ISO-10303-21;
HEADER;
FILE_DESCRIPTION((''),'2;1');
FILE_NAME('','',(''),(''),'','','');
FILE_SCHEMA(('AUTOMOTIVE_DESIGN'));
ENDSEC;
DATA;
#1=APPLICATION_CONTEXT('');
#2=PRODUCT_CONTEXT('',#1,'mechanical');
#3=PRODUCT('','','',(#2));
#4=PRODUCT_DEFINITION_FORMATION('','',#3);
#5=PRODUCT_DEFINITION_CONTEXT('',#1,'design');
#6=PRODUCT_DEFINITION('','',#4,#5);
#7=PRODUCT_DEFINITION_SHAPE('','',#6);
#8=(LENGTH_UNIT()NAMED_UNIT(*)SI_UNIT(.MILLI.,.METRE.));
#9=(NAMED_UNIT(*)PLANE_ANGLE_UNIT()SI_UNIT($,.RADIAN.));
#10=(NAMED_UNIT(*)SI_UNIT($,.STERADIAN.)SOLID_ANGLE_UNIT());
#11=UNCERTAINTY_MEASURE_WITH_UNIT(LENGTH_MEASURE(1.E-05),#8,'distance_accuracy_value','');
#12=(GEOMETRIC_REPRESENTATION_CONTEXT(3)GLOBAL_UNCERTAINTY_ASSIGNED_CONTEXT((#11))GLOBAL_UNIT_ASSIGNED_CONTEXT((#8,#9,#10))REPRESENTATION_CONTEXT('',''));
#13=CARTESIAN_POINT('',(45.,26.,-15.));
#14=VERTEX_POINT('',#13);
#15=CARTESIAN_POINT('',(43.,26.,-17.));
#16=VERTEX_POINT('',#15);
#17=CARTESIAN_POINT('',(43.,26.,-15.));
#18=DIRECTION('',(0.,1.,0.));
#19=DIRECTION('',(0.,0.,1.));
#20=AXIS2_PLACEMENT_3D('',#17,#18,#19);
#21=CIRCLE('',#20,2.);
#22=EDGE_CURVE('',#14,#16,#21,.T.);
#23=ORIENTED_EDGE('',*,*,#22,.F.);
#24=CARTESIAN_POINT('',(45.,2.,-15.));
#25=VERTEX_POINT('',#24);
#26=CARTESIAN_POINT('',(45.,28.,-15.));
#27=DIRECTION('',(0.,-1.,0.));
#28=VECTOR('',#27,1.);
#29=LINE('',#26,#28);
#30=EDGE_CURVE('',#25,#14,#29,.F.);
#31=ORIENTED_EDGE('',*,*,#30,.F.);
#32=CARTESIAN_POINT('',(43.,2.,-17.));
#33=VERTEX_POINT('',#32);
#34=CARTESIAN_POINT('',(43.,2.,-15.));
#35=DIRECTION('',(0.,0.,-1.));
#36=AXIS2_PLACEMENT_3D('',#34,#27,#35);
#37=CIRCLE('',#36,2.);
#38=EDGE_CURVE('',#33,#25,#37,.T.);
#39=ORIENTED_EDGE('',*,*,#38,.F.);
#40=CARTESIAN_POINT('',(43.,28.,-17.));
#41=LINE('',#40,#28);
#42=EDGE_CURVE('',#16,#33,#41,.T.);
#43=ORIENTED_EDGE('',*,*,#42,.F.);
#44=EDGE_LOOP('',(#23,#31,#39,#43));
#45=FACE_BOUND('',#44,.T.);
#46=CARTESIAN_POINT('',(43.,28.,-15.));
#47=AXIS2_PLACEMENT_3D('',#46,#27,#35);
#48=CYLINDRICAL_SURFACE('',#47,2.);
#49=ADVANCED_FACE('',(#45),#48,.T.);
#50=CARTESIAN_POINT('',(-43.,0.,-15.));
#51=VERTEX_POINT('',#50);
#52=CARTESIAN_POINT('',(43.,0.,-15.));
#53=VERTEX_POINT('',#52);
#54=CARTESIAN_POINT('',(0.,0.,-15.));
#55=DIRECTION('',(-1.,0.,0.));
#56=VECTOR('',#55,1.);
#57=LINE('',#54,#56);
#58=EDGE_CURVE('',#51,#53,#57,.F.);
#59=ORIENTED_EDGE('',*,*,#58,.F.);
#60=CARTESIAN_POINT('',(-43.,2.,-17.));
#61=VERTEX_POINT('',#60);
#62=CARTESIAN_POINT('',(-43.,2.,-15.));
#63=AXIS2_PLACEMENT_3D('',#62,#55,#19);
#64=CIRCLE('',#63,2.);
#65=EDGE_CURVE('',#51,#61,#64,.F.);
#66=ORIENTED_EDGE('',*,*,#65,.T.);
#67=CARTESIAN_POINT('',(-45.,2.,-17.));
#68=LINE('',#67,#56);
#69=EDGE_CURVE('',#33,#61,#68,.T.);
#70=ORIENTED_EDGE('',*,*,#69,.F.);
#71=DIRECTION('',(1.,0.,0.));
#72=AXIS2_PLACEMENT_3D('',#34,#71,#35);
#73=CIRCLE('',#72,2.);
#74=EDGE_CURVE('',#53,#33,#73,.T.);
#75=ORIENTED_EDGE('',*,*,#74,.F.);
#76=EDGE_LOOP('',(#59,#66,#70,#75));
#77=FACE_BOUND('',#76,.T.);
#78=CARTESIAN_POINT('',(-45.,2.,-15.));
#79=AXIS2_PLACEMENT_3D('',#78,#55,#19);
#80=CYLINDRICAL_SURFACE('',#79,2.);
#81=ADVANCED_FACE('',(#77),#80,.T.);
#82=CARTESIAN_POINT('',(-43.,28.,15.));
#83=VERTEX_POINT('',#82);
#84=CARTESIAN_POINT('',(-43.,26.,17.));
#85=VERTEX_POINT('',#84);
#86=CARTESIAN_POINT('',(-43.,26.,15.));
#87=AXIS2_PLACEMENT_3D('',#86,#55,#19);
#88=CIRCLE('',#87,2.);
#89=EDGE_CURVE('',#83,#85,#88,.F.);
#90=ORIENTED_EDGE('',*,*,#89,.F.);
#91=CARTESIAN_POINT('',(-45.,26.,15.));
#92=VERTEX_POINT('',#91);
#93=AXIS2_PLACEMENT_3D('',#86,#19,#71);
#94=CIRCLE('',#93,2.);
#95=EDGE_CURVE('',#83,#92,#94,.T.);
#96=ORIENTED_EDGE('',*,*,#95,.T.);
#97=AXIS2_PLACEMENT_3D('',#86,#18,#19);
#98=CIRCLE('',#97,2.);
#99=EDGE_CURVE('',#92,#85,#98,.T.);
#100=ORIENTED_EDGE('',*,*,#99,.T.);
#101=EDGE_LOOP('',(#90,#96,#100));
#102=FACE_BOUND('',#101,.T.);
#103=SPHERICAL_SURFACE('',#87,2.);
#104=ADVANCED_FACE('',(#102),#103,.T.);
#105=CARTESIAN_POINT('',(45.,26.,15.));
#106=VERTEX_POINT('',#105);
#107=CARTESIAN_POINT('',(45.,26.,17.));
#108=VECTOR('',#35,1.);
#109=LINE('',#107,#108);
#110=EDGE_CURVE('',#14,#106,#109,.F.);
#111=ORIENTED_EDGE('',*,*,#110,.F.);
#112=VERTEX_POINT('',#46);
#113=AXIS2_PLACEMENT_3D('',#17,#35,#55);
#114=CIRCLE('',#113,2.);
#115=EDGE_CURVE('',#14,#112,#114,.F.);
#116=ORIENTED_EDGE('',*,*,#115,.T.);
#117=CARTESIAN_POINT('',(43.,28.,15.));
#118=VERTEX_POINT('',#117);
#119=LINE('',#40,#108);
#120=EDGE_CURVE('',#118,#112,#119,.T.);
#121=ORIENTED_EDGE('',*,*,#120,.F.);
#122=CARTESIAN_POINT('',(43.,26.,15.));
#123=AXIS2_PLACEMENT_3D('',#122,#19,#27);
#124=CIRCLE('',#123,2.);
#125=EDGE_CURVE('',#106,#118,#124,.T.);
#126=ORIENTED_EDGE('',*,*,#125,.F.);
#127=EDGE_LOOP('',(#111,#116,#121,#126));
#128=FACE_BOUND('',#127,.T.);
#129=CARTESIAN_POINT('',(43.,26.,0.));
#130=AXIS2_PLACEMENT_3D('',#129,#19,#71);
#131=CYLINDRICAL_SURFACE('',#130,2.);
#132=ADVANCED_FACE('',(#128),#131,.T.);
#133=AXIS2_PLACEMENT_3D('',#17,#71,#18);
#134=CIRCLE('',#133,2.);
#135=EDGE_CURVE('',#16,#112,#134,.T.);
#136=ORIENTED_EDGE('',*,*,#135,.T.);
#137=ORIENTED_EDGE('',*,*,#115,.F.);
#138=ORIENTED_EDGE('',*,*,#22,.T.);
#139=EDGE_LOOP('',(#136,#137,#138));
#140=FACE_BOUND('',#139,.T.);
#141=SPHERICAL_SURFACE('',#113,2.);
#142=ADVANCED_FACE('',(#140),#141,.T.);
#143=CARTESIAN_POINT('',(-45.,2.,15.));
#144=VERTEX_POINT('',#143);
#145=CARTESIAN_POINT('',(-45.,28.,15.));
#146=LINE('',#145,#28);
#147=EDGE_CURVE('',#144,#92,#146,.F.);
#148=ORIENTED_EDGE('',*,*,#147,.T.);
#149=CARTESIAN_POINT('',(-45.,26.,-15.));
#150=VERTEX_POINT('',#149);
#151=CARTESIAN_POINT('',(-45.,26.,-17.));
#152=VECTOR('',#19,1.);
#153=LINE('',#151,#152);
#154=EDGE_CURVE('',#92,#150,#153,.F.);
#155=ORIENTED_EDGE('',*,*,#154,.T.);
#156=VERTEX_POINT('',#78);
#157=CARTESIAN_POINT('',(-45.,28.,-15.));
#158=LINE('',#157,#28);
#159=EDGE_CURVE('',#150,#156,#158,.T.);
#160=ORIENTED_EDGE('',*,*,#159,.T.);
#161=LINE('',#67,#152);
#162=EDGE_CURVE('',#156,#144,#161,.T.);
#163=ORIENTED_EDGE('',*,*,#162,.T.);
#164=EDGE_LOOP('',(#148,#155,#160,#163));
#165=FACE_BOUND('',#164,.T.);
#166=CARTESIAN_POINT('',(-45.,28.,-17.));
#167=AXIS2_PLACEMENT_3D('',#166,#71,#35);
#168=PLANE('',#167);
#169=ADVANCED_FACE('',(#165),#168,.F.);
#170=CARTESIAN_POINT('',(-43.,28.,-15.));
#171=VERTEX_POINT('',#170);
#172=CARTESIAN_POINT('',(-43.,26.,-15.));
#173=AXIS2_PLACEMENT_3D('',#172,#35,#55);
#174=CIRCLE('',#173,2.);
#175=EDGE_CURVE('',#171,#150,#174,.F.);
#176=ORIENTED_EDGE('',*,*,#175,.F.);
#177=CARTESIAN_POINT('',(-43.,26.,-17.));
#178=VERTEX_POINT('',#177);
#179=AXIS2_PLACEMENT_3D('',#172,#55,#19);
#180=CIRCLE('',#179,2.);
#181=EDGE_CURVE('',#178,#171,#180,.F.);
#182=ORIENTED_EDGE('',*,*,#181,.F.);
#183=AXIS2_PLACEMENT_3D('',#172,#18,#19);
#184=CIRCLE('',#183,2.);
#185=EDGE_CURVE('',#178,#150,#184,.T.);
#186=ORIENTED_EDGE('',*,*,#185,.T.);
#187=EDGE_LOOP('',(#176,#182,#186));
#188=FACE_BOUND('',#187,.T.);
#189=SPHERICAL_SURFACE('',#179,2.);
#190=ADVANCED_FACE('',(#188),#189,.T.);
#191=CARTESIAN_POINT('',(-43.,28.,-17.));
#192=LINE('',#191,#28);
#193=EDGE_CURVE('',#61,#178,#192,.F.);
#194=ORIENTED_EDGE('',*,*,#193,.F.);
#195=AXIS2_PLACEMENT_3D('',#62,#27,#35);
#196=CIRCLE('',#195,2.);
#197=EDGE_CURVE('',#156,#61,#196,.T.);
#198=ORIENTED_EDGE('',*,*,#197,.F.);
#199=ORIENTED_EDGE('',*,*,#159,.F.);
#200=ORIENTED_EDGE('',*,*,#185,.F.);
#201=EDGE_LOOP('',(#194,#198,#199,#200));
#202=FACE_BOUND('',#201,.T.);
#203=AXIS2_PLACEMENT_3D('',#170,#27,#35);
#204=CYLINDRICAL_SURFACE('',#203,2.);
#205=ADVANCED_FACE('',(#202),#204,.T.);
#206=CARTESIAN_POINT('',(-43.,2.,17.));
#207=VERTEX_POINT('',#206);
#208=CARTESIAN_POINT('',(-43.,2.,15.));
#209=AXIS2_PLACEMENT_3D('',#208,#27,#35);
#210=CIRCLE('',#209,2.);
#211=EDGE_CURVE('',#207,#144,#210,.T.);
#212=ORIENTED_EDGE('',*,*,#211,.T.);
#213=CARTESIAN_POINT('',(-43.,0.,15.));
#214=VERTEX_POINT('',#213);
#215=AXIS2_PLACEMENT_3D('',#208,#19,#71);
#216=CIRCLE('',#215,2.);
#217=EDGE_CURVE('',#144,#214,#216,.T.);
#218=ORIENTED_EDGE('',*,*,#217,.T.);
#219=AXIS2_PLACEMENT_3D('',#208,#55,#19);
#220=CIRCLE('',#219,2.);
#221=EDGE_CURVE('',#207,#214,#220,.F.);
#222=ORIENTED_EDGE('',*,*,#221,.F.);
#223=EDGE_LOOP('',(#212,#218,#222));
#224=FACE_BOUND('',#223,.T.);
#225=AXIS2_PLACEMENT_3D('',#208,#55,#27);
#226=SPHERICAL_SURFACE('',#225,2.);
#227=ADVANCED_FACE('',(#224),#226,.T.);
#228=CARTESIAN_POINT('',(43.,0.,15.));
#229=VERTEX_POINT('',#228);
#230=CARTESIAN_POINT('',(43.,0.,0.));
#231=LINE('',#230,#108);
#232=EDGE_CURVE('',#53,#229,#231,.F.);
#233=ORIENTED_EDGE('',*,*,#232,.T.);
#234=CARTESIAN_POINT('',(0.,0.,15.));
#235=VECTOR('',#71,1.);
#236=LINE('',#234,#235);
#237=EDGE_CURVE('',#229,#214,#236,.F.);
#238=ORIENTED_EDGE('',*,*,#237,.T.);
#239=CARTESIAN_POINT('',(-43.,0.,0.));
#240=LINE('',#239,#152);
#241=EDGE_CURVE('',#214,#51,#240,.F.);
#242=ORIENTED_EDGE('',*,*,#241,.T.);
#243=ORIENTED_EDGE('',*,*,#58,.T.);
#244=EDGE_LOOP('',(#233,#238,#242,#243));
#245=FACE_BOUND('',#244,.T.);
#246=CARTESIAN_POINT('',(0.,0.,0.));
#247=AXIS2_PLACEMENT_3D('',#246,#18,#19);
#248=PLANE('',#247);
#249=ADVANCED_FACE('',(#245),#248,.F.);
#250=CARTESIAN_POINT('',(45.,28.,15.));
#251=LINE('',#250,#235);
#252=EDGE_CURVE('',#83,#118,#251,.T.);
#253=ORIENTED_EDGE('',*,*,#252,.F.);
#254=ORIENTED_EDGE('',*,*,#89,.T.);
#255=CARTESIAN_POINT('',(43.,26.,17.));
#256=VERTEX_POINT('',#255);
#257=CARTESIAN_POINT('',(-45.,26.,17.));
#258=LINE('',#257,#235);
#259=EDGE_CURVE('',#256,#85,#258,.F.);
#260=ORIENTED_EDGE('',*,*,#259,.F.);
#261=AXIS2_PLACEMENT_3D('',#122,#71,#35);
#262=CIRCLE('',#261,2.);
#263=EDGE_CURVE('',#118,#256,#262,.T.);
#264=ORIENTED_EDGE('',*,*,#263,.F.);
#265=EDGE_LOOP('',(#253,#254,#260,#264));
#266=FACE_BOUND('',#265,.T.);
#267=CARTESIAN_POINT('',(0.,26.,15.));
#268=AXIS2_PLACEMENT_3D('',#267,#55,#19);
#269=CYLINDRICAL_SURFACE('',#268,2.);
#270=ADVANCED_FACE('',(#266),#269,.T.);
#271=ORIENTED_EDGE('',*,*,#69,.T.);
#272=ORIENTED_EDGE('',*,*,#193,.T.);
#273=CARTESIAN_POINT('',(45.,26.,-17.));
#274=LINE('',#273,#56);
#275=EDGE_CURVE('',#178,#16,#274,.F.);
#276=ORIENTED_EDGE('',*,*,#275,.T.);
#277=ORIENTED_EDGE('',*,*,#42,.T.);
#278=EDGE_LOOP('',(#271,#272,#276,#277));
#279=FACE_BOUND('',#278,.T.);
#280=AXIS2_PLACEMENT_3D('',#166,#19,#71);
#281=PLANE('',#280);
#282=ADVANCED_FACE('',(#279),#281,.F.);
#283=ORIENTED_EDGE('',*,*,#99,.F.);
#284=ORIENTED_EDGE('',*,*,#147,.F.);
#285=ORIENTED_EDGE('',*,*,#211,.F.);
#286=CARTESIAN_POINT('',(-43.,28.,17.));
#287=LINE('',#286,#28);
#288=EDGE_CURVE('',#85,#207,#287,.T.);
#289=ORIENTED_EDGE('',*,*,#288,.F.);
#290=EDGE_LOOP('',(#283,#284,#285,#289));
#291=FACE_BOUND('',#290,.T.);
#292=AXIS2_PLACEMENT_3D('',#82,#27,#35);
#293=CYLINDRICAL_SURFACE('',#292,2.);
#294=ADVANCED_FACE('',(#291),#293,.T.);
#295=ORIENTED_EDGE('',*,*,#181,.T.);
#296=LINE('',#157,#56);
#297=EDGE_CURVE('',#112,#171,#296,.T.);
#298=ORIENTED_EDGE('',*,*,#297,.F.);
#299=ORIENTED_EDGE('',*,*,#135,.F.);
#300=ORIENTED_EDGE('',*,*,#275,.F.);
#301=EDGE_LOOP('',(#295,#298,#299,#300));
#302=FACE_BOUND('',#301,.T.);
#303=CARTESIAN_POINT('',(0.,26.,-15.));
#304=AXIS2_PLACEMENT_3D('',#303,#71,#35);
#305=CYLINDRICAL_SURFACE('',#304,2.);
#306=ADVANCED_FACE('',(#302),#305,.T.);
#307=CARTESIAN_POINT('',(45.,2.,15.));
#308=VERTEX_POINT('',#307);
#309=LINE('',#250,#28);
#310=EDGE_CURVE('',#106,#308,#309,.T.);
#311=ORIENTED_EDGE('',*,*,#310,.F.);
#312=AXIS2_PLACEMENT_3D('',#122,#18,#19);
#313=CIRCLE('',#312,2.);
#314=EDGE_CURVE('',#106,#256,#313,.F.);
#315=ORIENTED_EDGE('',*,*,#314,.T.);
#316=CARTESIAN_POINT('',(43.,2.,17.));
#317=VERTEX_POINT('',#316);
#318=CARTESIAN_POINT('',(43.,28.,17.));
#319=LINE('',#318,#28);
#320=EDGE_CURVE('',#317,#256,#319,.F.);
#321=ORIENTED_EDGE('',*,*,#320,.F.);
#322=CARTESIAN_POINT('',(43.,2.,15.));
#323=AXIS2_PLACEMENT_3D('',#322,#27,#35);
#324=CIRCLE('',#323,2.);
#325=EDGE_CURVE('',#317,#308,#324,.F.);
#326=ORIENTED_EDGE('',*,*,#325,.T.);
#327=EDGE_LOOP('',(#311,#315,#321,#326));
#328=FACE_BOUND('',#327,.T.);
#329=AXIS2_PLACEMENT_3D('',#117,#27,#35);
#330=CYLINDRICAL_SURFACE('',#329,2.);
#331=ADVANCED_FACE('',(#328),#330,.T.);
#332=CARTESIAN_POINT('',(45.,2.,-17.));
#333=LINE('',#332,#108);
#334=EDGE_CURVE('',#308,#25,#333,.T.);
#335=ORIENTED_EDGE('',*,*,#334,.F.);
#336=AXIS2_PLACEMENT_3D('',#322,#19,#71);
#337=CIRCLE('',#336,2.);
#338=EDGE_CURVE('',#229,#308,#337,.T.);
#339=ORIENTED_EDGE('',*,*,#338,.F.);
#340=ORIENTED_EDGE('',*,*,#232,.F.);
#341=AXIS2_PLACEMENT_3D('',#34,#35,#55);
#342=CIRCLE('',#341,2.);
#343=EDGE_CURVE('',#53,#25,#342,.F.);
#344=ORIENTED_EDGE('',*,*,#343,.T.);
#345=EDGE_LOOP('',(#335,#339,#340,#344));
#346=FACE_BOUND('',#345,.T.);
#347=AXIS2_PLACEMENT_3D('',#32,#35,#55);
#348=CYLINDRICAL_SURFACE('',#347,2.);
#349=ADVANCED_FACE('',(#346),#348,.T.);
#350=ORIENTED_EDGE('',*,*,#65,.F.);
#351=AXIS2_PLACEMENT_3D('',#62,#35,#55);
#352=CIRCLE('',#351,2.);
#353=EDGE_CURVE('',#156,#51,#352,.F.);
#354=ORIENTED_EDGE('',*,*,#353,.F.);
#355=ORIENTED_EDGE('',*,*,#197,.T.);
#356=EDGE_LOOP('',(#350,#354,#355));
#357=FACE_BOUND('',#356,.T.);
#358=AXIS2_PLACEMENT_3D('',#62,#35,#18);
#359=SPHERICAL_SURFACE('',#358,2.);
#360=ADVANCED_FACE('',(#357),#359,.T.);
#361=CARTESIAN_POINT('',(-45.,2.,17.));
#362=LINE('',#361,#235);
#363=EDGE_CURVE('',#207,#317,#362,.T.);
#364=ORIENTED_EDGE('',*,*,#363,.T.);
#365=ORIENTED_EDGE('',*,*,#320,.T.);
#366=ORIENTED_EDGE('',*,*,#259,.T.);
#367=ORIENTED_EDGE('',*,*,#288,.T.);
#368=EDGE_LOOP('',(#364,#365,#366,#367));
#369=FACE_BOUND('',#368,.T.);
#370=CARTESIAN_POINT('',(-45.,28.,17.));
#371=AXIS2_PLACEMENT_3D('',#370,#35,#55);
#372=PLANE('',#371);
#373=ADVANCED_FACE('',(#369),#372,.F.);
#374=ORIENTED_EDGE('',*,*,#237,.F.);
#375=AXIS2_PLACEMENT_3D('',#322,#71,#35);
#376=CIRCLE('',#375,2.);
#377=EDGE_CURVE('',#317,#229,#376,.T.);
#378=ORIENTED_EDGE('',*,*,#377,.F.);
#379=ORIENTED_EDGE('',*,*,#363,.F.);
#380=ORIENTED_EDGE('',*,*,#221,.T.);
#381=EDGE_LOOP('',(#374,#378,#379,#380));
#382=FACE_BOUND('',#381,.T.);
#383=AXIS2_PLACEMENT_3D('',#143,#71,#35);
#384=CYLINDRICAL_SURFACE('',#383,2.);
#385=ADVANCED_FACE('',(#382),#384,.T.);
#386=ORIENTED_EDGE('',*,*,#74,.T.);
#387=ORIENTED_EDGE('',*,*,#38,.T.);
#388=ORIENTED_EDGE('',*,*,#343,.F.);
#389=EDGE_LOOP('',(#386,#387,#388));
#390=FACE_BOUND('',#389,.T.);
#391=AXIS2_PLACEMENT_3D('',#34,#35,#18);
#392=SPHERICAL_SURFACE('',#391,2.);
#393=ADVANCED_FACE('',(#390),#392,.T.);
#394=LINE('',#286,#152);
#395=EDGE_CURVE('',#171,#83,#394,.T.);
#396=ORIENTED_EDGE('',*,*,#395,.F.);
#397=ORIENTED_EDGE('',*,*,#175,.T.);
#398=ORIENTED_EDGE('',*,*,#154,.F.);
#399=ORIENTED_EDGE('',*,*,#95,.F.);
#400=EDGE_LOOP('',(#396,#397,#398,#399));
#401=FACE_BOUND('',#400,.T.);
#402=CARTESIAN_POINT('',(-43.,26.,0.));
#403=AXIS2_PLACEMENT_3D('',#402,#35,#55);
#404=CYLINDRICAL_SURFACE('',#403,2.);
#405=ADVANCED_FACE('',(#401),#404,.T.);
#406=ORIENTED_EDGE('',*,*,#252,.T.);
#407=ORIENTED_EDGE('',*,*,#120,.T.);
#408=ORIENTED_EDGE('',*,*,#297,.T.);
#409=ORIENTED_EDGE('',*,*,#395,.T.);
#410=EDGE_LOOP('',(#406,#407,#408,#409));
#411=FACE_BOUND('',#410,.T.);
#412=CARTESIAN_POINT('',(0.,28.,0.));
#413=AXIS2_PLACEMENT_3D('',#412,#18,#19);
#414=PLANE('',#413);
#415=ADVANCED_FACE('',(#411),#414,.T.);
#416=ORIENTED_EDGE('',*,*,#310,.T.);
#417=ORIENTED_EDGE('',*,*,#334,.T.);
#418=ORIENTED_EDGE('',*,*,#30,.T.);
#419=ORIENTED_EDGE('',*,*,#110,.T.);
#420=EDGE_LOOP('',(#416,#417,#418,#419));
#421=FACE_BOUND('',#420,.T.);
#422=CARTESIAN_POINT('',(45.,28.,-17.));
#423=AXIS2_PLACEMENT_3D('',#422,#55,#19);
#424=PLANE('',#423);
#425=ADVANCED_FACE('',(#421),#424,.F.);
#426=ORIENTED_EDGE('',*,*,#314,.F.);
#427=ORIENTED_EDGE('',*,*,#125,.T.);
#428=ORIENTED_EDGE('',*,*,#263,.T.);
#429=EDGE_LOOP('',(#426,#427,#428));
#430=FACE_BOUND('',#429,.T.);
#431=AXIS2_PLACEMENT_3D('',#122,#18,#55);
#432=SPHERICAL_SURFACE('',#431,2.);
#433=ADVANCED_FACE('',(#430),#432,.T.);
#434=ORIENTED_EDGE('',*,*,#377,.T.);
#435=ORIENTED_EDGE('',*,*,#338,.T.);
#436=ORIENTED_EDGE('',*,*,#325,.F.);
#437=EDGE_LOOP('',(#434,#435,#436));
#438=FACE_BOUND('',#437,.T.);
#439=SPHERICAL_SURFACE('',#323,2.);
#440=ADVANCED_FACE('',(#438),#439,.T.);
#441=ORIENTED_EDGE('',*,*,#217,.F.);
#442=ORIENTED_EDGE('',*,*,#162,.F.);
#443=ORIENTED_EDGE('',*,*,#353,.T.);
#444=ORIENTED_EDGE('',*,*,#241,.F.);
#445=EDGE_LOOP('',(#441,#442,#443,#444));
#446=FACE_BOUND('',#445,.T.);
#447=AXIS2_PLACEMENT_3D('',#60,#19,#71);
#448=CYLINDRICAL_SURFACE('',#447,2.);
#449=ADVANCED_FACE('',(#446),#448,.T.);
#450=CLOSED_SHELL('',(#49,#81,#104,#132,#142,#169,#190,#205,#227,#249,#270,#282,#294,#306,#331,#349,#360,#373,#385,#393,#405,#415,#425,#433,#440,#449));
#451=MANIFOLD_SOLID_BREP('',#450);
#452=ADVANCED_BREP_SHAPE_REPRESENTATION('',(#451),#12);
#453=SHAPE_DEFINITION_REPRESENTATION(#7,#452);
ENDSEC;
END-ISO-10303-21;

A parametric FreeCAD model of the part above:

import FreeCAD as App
import Part
import Sketcher
from FreeCAD import Vector
Q = App.Units.Quantity

doc = App.newDocument("Part")
body = doc.addObject("PartDesign::Body", "Body")

sketch1 = body.newObject("Sketcher::SketchObject", "Sketch")
sketch1.AttachmentSupport = (doc.getObject("XZ_Plane"), [""])
sketch1.MapMode = "FlatFace"
sketch1.addGeometry([
    Part.LineSegment(Vector(-45, -17, 0), Vector(-45, 17, 0)),
    Part.LineSegment(Vector(-45, 17, 0), Vector(45, 17, 0)),
    Part.LineSegment(Vector(45, 17, 0), Vector(45, -17, 0)),
    Part.LineSegment(Vector(45, -17, 0), Vector(-45, -17, 0)),
], False)
sketch1.addConstraint([
    Sketcher.Constraint("Coincident", 0, 2, 1, 1),
    Sketcher.Constraint("Coincident", 1, 2, 2, 1),
    Sketcher.Constraint("Coincident", 2, 2, 3, 1),
    Sketcher.Constraint("Coincident", 3, 2, 0, 1),
    Sketcher.Constraint("Vertical", 0),
    Sketcher.Constraint("Horizontal", 1),
    Sketcher.Constraint("Vertical", 2),
    Sketcher.Constraint("Horizontal", 3),
    Sketcher.Constraint("Symmetric", 0, 2, 2, 2, -1, 1),
    Sketcher.Constraint("DistanceX", 1, 1, 1, 2, Q("90 mm")),
    Sketcher.Constraint("DistanceY", 0, 1, 0, 2, Q("34 mm")),
])
pad1 = body.newObject("PartDesign::Pad", "Pad")
pad1.Profile = sketch1
pad1.Length = 28
pad1.Reversed = True
doc.recompute()

fillet = body.newObject("PartDesign::Fillet", "Fillet")
fillet.Base = (pad1, ["Edge1"])
fillet.UseAllEdges = True
fillet.Radius = 2

doc.recompute()
